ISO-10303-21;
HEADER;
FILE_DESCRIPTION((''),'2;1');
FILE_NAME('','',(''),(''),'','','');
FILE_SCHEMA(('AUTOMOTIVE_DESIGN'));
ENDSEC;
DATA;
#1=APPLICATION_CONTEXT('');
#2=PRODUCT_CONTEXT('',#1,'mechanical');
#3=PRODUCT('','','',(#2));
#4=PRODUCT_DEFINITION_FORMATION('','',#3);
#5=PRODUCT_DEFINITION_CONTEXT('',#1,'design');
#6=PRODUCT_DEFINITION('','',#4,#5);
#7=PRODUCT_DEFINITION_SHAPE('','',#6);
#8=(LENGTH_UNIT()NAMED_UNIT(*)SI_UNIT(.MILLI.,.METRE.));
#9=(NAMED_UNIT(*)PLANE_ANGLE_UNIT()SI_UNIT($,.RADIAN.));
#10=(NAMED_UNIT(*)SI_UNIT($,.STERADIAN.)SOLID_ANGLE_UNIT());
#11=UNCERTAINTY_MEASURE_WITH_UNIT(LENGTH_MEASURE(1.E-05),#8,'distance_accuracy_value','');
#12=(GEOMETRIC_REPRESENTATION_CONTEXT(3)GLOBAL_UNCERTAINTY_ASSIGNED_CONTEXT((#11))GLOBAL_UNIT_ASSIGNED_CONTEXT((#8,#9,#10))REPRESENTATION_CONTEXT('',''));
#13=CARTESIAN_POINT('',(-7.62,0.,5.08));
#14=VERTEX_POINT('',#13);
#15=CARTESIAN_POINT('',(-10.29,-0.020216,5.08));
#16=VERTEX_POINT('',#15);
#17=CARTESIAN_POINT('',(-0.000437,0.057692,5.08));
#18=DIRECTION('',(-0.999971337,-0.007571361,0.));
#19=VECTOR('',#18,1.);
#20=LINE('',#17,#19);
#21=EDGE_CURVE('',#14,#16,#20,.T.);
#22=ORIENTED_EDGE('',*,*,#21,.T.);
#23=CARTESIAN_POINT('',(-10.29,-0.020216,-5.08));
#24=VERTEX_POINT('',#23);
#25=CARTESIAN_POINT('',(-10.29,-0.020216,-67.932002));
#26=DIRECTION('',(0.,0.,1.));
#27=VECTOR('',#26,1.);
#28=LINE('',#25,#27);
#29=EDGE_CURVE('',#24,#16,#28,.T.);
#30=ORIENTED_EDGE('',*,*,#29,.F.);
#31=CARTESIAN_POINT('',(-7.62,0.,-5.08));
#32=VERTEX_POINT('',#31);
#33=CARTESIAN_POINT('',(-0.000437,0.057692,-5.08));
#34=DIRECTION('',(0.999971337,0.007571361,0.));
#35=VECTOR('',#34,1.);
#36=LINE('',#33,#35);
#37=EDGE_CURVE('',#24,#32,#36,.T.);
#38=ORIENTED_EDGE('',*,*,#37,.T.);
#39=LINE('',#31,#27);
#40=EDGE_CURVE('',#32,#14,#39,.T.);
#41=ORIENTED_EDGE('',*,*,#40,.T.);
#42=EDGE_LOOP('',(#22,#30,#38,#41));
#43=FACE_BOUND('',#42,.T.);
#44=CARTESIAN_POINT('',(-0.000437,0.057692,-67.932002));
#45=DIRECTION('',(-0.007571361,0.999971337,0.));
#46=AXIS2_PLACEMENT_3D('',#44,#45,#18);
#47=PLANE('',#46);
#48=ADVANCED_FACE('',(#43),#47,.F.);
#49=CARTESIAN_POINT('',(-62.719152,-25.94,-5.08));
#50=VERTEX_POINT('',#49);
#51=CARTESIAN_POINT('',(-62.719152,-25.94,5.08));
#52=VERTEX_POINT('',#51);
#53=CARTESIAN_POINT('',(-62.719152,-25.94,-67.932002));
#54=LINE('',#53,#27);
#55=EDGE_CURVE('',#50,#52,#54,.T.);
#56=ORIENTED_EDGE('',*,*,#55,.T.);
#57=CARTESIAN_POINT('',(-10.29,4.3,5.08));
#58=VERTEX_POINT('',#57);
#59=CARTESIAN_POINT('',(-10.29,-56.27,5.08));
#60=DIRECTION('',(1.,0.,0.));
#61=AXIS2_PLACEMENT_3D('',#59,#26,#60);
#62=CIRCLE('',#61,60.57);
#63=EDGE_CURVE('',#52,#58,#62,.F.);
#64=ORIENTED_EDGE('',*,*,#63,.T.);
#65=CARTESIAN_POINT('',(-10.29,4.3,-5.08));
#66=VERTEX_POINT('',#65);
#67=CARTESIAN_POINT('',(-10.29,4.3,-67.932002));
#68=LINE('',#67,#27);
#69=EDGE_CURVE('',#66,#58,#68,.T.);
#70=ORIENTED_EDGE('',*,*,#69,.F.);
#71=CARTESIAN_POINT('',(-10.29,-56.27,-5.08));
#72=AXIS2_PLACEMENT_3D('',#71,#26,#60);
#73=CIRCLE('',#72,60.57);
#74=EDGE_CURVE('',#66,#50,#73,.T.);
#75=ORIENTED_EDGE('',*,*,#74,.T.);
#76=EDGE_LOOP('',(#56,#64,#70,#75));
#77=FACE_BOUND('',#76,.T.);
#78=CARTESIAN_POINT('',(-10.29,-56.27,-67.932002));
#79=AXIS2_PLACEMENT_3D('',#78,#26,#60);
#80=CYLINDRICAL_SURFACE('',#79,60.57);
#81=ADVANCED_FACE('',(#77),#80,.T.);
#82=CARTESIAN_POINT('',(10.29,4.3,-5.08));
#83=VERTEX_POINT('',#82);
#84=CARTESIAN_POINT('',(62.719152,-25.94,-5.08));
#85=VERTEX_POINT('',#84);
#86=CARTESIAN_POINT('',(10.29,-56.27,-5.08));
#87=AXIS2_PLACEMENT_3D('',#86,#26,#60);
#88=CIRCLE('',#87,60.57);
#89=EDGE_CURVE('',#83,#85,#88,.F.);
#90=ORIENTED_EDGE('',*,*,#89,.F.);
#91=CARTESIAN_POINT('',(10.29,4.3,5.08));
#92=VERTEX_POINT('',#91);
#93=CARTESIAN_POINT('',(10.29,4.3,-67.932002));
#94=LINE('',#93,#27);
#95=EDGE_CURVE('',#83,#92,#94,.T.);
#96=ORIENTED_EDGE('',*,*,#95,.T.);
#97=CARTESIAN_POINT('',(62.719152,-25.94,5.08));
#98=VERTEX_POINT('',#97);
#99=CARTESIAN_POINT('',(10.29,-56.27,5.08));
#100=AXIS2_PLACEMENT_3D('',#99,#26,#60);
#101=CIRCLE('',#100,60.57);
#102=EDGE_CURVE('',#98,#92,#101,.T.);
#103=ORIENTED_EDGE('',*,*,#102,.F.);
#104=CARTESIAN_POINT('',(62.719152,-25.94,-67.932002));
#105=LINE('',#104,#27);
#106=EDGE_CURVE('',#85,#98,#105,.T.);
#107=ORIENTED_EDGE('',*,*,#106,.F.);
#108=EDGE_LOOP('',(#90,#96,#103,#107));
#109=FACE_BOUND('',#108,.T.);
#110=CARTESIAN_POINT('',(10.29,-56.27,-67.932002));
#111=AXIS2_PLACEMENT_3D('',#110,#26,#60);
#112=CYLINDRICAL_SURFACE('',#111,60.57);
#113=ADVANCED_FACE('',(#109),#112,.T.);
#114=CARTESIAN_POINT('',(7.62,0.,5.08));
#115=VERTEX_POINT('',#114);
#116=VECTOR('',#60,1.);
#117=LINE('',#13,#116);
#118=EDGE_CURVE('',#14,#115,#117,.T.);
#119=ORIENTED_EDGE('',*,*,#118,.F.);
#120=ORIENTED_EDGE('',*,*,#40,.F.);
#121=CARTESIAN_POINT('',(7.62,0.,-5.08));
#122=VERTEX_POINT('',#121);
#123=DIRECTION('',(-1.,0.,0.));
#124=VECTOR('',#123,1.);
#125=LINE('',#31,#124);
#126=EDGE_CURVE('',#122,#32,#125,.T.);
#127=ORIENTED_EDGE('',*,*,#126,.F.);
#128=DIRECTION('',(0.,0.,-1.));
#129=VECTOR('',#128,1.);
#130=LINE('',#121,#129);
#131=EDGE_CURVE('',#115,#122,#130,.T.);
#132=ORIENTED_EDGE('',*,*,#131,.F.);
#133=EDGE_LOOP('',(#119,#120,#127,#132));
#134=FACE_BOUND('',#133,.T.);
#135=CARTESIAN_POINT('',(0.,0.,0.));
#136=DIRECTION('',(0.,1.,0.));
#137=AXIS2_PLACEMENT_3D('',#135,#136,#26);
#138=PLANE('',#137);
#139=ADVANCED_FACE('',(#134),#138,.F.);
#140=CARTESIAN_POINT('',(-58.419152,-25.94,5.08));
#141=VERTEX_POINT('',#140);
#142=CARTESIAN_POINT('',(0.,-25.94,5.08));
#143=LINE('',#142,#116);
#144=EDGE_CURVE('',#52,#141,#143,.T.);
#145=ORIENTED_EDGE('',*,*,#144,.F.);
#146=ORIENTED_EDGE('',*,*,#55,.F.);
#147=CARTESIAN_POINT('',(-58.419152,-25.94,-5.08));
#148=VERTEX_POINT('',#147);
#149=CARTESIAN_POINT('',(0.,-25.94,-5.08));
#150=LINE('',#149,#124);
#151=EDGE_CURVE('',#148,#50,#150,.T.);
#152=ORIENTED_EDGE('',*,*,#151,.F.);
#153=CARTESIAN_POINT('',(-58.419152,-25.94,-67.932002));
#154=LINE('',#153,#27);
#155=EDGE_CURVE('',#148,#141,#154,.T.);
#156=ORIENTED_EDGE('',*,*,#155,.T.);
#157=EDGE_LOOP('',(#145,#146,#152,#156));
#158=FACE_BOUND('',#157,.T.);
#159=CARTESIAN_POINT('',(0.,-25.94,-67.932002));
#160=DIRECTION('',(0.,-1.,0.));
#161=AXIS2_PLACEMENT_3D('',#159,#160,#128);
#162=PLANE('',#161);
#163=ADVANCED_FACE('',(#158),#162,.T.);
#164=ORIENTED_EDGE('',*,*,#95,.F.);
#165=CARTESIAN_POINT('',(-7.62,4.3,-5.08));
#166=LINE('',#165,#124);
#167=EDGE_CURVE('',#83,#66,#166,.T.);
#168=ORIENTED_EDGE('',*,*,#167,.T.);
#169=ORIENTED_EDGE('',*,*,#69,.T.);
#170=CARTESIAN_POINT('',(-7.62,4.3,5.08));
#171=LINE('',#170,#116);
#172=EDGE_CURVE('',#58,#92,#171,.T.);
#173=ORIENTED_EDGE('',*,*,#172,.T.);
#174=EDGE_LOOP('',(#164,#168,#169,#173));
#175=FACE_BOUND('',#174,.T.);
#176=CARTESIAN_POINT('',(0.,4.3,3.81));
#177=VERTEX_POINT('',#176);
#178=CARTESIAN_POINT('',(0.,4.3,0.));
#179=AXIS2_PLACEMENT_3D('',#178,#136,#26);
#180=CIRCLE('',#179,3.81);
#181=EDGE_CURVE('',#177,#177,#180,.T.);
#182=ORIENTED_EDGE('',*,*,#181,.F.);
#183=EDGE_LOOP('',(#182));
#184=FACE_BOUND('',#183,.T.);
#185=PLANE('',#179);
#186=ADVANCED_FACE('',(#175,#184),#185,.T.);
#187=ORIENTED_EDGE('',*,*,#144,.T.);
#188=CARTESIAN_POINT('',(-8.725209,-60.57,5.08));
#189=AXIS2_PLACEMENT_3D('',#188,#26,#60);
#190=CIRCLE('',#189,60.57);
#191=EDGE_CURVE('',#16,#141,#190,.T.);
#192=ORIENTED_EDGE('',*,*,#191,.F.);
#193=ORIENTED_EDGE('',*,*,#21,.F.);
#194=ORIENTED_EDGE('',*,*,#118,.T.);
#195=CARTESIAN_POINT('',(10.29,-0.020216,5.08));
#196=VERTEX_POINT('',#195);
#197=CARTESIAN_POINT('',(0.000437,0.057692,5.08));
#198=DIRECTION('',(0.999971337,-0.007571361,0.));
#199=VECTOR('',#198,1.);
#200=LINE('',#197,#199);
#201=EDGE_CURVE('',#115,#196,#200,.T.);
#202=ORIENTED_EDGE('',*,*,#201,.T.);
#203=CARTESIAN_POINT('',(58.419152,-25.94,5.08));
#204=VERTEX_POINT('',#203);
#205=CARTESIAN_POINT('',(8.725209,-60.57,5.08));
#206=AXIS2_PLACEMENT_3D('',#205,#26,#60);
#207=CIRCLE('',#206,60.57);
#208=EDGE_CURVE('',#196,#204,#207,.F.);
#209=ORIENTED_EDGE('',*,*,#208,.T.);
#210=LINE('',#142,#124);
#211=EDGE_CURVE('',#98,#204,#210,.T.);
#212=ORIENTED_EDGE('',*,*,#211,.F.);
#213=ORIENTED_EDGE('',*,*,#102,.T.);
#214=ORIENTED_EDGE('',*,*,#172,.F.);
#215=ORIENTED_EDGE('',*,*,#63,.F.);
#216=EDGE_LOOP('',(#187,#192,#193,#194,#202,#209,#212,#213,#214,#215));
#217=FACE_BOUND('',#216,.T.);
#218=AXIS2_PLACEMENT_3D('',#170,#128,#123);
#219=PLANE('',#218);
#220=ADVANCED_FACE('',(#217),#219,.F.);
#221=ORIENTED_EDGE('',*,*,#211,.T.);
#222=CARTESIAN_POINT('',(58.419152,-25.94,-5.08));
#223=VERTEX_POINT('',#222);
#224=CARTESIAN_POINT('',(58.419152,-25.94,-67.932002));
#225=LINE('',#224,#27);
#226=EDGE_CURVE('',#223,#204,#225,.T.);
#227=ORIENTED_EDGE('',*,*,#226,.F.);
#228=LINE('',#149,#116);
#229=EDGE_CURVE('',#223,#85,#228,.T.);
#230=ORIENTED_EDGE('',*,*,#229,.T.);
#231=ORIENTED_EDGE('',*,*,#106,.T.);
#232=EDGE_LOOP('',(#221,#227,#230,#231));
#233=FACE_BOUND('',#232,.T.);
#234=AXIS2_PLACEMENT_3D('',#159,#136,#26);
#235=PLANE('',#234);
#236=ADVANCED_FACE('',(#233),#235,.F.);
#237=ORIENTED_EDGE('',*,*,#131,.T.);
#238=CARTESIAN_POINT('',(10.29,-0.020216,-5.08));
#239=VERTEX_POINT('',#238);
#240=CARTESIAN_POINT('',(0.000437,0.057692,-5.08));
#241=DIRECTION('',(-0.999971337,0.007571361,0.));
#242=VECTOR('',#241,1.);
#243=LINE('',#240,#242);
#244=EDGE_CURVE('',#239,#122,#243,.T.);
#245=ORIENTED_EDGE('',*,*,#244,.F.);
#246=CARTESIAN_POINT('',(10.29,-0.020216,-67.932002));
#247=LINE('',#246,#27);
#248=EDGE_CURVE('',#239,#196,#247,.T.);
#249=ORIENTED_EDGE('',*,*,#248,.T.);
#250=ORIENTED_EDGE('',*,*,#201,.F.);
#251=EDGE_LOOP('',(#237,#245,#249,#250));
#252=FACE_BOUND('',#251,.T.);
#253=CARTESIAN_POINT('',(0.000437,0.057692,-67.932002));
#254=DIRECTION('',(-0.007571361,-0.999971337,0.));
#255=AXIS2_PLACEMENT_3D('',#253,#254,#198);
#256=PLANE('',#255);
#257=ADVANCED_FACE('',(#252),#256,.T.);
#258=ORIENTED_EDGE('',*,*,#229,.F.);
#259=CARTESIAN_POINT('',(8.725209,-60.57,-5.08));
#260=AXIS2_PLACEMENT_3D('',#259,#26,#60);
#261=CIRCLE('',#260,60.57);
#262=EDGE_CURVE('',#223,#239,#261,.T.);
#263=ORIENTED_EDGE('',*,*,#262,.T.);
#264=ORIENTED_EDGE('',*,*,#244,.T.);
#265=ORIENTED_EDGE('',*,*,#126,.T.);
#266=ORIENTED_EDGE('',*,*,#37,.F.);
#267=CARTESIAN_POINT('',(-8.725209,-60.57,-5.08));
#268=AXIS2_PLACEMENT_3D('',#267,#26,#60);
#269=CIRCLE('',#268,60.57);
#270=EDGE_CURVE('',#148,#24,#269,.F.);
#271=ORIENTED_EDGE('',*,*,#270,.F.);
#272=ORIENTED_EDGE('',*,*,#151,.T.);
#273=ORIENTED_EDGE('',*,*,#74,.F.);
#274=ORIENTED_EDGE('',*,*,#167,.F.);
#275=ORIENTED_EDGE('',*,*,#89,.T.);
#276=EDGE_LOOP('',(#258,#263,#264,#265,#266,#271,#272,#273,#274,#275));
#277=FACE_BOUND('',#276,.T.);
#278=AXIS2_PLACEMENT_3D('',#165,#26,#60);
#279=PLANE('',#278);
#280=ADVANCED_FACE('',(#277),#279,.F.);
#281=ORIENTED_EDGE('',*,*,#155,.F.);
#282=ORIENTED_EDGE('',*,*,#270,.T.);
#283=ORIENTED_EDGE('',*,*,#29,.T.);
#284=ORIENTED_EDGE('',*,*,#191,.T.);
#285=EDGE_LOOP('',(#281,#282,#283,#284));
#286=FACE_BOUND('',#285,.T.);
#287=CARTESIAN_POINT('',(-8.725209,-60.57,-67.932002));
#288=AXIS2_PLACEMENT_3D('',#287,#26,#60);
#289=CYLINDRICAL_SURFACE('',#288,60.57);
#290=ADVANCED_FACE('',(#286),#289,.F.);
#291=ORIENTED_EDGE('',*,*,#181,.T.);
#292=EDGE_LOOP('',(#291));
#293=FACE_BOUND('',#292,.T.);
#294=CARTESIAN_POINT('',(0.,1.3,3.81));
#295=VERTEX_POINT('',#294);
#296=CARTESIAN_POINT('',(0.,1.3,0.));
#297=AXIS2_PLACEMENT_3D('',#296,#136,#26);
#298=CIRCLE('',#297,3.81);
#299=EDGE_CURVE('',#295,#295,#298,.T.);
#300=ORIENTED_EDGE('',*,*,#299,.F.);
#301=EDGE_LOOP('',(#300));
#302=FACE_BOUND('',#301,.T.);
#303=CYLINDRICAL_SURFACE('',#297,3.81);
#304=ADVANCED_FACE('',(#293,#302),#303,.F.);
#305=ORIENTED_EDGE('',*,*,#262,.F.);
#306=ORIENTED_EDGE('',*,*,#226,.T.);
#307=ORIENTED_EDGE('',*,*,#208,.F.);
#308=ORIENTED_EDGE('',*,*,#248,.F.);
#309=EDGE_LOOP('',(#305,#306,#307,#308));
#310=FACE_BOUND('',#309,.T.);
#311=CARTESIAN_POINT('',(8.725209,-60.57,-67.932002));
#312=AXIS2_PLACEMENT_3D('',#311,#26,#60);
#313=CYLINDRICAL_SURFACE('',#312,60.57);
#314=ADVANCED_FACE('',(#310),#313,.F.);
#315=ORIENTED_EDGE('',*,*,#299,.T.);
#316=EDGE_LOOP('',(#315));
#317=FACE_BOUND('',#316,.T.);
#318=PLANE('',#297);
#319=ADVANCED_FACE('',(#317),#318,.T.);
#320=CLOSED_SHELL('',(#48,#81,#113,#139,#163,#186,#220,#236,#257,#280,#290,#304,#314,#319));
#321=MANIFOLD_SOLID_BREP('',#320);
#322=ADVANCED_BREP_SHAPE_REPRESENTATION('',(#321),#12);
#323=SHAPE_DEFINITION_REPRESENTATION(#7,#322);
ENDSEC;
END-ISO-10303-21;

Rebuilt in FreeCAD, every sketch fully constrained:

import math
import FreeCAD as App
import Part
import Sketcher

V = App.Vector
Q = App.Units.Quantity

doc = App.newDocument("Part")
body = doc.addObject("PartDesign::Body", "Body")

# Sketch on XZ plane
sketch1 = doc.addObject("Sketcher::SketchObject", "Sketch")
body.addObject(sketch1)
sketch1.AttachmentSupport = (doc.XZ_Plane, [""])
sketch1.MapMode = "FlatFace"
sketch1.addGeometry([
    Part.LineSegment(V(-8, -5, 0), V(-8, 5, 0)),
    Part.LineSegment(V(-8, 5, 0), V(8, 5, 0)),
    Part.LineSegment(V(8, 5, 0), V(8, -5, 0)),
    Part.LineSegment(V(8, -5, 0), V(-8, -5, 0)),
], False)
sketch1.addConstraint([
    Sketcher.Constraint("Coincident", 0, 2, 1, 1),
    Sketcher.Constraint("Coincident", 1, 2, 2, 1),
    Sketcher.Constraint("Coincident", 2, 2, 3, 1),
    Sketcher.Constraint("Coincident", 3, 2, 0, 1),
    Sketcher.Constraint("Vertical", 0),
    Sketcher.Constraint("Horizontal", 1),
    Sketcher.Constraint("Vertical", 2),
    Sketcher.Constraint("Horizontal", 3),
    Sketcher.Constraint("Symmetric", 0, 2, 2, 2, -1, 1),
    Sketcher.Constraint("DistanceX", 1, 1, 1, 2, Q("0.6 in")),
    Sketcher.Constraint("DistanceY", 0, 1, 0, 2, Q("0.4 in")),
])
pad1 = doc.addObject("PartDesign::Pad", "Pad")
body.addObject(pad1)
pad1.Profile = sketch1
pad1.Length = 4.3
pad1.Reversed = True

# Sketch on XY plane
sketch2 = doc.addObject("Sketcher::SketchObject", "Sketch001")
body.addObject(sketch2)
sketch2.AttachmentSupport = (doc.XY_Plane, [""])
sketch2.MapMode = "FlatFace"
sketch2.AttachmentOffset = App.Placement(V(0, 0, 0.2 * 25.4), App.Rotation())
sketch2.addGeometry([
    Part.LineSegment(V(7.6, 4.3, 0), V(7.6, 0, 0)),  # 0
    Part.LineSegment(V(7.6, 0, 0), V(10.3, 0, 0)),  # 1
    Part.ArcOfCircle(Part.Circle(V(8.7, -60.6, 0), V(0, 0, 1), 60.6), math.radians(35), math.radians(89)),  # 2
    Part.LineSegment(V(58.4, -25.9, 0), V(62.7, -25.9, 0)),  # 3
    Part.ArcOfCircle(Part.Circle(V(10.3, -56.3, 0), V(0, 0, 1), 60.6), math.radians(30), math.radians(90)),  # 4
    Part.LineSegment(V(10.3, 4.3, 0), V(7.6, 4.3, 0)),  # 5
    Part.ArcOfCircle(Part.Circle(V(-10.3, -56.3, 0), V(0, 0, 1), 60.6), math.radians(90), math.radians(150)),  # 6
    Part.LineSegment(V(-62.7, -25.9, 0), V(-58.4, -25.9, 0)),  # 7
    Part.ArcOfCircle(Part.Circle(V(-8.7, -60.6, 0), V(0, 0, 1), 60.6), math.radians(91), math.radians(145)),  # 8
    Part.LineSegment(V(-10.3, 0, 0), V(-7.6, 0, 0)),  # 9
    Part.LineSegment(V(-7.6, 0, 0), V(-7.6, 4.3, 0)),  # 10
    Part.LineSegment(V(-7.6, 4.3, 0), V(-10.3, 4.3, 0)),  # 11
], False)
sketch2.addConstraint([
    Sketcher.Constraint("Coincident", 0, 2, 1, 1),
    Sketcher.Constraint("Coincident", 1, 2, 2, 2),
    Sketcher.Constraint("Coincident", 2, 1, 3, 1),
    Sketcher.Constraint("Coincident", 3, 2, 4, 1),
    Sketcher.Constraint("Tangent", 4, 2, 5, 1),
    Sketcher.Constraint("Coincident", 5, 2, 0, 1),
    Sketcher.Constraint("Coincident", 6, 2, 7, 1),
    Sketcher.Constraint("Coincident", 7, 2, 8, 2),
    Sketcher.Constraint("Coincident", 8, 1, 9, 1),
    Sketcher.Constraint("Coincident", 9, 2, 10, 1),
    Sketcher.Constraint("Coincident", 10, 2, 11, 1),
    Sketcher.Constraint("Tangent", 11, 2, 6, 1),
    Sketcher.Constraint("Vertical", 0),
    Sketcher.Constraint("Horizontal", 3),
    Sketcher.Constraint("Horizontal", 5),
    Sketcher.Constraint("Horizontal", 7),
    Sketcher.Constraint("Vertical", 10),
    Sketcher.Constraint("Horizontal", 11),
    Sketcher.Constraint("Equal", 2, 4),
    Sketcher.Constraint("Equal", 4, 6),
    Sketcher.Constraint("Equal", 6, 8),
    Sketcher.Constraint("Symmetric", 0, 2, 9, 2, -1, 1),
    Sketcher.Constraint("Symmetric", 4, 3, 6, 3, -2),
    Sketcher.Constraint("Symmetric", 2, 3, 8, 3, -2),
    Sketcher.Constraint("PointOnObject", 0, 2, -1),
    Sketcher.Constraint("Horizontal", 3, 2, 6, 2),
    Sketcher.Constraint("Horizontal", 1, 2, 8, 1),
    Sketcher.Constraint("Vertical", 4, 3, 1, 2),
    Sketcher.Constraint("Equal", 7, 0),
    Sketcher.Constraint("DistanceX", -1, 1, 0, 2, Q("0.3 in")),
    Sketcher.Constraint("Radius", 2, Q("60.57 mm")),
    Sketcher.Constraint("DistanceX", 3, 1, 3, 2, Q("4.3 mm")),
    Sketcher.Constraint("DistanceX", 5, 2, 5, 1, Q("2.67 mm")),
    Sketcher.Constraint("DistanceY", 2, 3, -1, 1, Q("60.57 mm")),
    Sketcher.Constraint("DistanceY", 2, 1, -1, 1, Q("25.94 mm")),
])
pad2 = doc.addObject("PartDesign::Pad", "Pad001")
body.addObject(pad2)
pad2.Profile = sketch2
pad2.Length = Q("0.4 in")
pad2.Reversed = True

# Sketch on XZ plane
sketch3 = doc.addObject("Sketcher::SketchObject", "Sketch002")
body.addObject(sketch3)
sketch3.AttachmentSupport = (doc.XZ_Plane, [""])
sketch3.MapMode = "FlatFace"
sketch3.AttachmentOffset = App.Placement(V(0, 0, -4.3), App.Rotation())
sketch3.addGeometry(Part.Circle(V(0, 0, 0), V(0, 0, 1), 3.8), False)
sketch3.addConstraint([
    Sketcher.Constraint("Coincident", 0, 3, -1, 1),
    Sketcher.Constraint("Diameter", 0, Q("0.3 in")),
])
pocket1 = doc.addObject("PartDesign::Pocket", "Pocket")
body.addObject(pocket1)
pocket1.Profile = sketch3
pocket1.Length = 3
pocket1.Reversed = True

doc.recompute()
